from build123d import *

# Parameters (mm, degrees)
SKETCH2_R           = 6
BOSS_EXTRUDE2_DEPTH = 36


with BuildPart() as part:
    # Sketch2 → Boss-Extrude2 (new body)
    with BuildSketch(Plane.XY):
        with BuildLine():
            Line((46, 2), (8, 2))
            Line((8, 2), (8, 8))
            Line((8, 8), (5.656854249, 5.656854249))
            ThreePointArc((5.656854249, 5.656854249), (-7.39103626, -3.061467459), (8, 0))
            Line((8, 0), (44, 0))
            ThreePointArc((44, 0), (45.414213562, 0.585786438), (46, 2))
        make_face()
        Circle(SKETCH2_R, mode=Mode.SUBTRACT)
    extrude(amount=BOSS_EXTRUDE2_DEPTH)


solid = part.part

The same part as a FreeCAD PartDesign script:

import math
import FreeCAD as App
import Part
import Sketcher

V = App.Vector
Q = App.Units.Quantity

doc = App.newDocument("Part")
body = doc.addObject("PartDesign::Body", "Body")

# Sketch on XY plane
sketch1 = body.newObject("Sketcher::SketchObject", "Sketch")
sketch1.AttachmentSupport = (doc.getObject("XY_Plane"), [""])
sketch1.MapMode = "FlatFace"
sketch1.addGeometry([
    Part.LineSegment(V(46, 2, 0), V(8, 2, 0)),  # 0
    Part.LineSegment(V(8, 2, 0), V(8, 8, 0)),  # 1
    Part.LineSegment(V(8, 8, 0), V(5.656854, 5.656854, 0)),  # 2
    Part.ArcOfCircle(Part.Circle(V(0, 0, 0), V(0, 0, 1), 8), math.radians(45), math.radians(360)),  # 3
    Part.LineSegment(V(8, 0, 0), V(44, 0, 0)),  # 4
    Part.ArcOfCircle(Part.Circle(V(44, 2, 0), V(0, 0, 1), 2), math.radians(-90), math.radians(0)),  # 5
    Part.Circle(V(0, 0, 0), V(0, 0, 1), 6),  # 6
], False)
sketch1.addConstraint([
    Sketcher.Constraint("Coincident", 0, 2, 1, 1),
    Sketcher.Constraint("Coincident", 1, 2, 2, 1),
    Sketcher.Constraint("Coincident", 2, 2, 3, 1),
    Sketcher.Constraint("Coincident", 3, 2, 4, 1),
    Sketcher.Constraint("Tangent", 4, 2, 5, 1),
    Sketcher.Constraint("Coincident", 5, 2, 0, 1),
    Sketcher.Constraint("Horizontal", 0),
    Sketcher.Constraint("Vertical", 1),
    Sketcher.Constraint("Horizontal", 4),
    Sketcher.Constraint("Coincident", 3, 3, -1, 1),
    Sketcher.Constraint("Coincident", 6, 3, -1, 1),
    Sketcher.Constraint("PointOnObject", 3, 2, -1),
    Sketcher.Constraint("Horizontal", 5, 3, 0, 2),
    Sketcher.Constraint("Vertical", 1, 2, 3, 2),
    Sketcher.Constraint("Diameter", 6, Q("12 mm")),
    Sketcher.Constraint("Radius", 3, Q("8 mm")),
    Sketcher.Constraint("Radius", 5, Q("2 mm")),
    Sketcher.Constraint("DistanceX", 0, 2, 0, 1, Q("38 mm")),
    Sketcher.Constraint("DistanceY", 1, 1, 1, 2, Q("6 mm")),
    Sketcher.Constraint("Angle", 2, Q("-135 deg")),
])
pad1 = body.newObject("PartDesign::Pad", "Pad")
pad1.Profile = sketch1
pad1.Length = 36

doc.recompute()
